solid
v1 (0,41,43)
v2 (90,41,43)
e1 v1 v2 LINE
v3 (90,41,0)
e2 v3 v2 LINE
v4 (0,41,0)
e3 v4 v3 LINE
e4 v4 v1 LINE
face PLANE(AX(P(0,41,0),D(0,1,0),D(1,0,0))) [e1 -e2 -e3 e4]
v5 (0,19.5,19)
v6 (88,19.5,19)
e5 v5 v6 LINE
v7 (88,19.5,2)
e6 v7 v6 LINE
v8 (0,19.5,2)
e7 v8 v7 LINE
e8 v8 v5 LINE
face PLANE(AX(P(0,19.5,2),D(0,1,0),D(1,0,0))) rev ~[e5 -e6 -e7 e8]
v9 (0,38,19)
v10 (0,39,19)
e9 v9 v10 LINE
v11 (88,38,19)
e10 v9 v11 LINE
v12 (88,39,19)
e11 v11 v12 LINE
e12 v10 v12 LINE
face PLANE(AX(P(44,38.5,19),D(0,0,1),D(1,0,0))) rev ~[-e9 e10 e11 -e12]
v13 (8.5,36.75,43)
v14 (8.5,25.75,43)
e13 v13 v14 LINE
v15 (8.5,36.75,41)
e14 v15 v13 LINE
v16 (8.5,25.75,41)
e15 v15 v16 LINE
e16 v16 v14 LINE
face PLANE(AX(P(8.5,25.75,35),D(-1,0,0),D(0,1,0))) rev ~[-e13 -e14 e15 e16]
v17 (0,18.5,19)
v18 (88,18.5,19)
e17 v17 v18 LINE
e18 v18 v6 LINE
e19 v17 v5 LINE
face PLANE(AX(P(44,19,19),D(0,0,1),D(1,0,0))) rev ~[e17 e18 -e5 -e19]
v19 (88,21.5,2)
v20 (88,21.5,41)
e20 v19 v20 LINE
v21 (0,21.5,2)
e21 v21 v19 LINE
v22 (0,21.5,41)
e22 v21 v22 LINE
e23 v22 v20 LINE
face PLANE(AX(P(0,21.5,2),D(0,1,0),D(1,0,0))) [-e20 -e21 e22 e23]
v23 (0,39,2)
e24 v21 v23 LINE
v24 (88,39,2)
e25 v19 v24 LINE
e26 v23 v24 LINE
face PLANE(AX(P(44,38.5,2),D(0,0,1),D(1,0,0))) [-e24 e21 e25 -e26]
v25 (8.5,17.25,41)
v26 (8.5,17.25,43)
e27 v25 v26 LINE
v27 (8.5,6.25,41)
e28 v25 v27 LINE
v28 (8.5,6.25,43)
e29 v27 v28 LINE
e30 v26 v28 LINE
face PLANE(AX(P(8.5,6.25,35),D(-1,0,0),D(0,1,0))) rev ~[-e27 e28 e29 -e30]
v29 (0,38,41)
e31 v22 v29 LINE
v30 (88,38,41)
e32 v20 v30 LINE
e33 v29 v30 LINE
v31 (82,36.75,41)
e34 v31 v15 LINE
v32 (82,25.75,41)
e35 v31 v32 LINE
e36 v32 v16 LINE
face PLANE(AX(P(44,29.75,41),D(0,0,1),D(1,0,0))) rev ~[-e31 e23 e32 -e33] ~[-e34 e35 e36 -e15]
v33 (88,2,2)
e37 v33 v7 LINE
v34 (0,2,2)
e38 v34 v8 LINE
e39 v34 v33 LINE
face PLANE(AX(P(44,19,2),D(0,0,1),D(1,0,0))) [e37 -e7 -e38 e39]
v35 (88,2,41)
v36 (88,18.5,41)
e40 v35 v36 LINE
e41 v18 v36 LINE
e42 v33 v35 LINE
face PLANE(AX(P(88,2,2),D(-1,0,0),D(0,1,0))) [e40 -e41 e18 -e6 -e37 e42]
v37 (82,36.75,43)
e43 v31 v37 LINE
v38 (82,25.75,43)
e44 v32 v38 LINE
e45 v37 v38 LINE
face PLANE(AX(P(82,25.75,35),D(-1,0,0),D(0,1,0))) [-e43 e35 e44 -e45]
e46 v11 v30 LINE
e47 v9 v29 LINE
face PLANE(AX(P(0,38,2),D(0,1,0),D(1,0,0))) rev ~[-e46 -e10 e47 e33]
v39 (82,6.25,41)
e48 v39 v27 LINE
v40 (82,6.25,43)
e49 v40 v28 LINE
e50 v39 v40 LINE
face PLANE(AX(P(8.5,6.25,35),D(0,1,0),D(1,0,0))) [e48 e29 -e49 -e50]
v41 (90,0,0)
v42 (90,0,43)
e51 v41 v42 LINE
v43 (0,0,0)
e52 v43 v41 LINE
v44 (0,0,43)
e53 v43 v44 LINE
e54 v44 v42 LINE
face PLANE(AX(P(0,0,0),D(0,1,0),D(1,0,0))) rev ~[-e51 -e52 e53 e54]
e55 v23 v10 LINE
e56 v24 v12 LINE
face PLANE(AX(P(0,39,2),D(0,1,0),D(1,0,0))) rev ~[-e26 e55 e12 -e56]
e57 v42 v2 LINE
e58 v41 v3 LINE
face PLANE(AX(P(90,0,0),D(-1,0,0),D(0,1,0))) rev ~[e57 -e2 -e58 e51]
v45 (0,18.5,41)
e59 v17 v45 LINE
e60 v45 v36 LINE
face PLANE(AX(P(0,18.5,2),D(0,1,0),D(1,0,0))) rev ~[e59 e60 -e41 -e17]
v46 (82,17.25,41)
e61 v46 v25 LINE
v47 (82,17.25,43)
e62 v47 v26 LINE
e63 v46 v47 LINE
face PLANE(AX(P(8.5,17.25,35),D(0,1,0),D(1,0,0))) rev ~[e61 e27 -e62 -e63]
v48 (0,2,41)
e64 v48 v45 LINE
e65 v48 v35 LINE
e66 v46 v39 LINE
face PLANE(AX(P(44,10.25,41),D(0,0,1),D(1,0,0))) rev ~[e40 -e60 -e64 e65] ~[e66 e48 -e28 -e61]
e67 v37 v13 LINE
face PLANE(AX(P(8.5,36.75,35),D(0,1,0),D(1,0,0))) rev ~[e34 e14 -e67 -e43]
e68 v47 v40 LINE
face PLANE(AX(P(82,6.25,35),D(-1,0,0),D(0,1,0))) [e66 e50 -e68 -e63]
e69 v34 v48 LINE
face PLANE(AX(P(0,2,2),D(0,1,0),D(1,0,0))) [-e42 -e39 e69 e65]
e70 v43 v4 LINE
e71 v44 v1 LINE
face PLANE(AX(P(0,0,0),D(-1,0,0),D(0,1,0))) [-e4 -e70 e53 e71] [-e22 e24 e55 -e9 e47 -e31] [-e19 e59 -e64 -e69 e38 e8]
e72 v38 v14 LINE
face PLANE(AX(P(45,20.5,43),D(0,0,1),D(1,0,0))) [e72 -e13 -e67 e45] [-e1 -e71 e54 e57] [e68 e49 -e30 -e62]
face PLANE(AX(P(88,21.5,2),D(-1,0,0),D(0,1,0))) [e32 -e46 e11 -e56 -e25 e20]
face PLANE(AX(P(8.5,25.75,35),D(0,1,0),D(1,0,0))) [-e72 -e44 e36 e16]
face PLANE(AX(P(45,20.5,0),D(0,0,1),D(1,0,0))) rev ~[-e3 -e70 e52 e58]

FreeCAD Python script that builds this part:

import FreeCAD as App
import Part
import Sketcher

V = App.Vector
Q = App.Units.Quantity


def add_polygon(sketch, points):
    """Adds a closed chain of lines whose ends are joined by coincident constraints."""
    first, n = sketch.GeometryCount, len(points)
    for a, b in zip(points, points[1:] + points[:1]):
        sketch.addGeometry(Part.LineSegment(App.Vector(*a, 0), App.Vector(*b, 0)), False)
    for i in range(n):
        sketch.addConstraint(Sketcher.Constraint("Coincident", first + i, 2, first + (i + 1) % n, 1))

doc = App.newDocument("Part")
body = doc.addObject("PartDesign::Body", "Body")

sketch1 = body.newObject("Sketcher::SketchObject", "Sketch")
sketch1.AttachmentSupport = (doc.getObject("XY_Plane"), [""])
sketch1.MapMode = "FlatFace"
sketch1.AttachmentOffset = App.Placement(V(0, 0, 35), App.Rotation())
add_polygon(sketch1, [(8, 37), (8, 26), (82, 26), (82, 37)])
sketch1.addConstraint(Sketcher.Constraint("Vertical", 0))
sketch1.addConstraint(Sketcher.Constraint("Horizontal", 1))
sketch1.addConstraint(Sketcher.Constraint("Vertical", 2))
sketch1.addConstraint(Sketcher.Constraint("Horizontal", 3))
sketch1.addConstraint(Sketcher.Constraint("DistanceY", 0, 2, 0, 1, Q("11 mm")))
sketch1.addConstraint(Sketcher.Constraint("DistanceX", 1, 1, 1, 2, Q("73.5 mm")))
sketch1.addConstraint(Sketcher.Constraint("DistanceX", -1, 1, 1, 2, Q("82 mm")))
sketch1.addConstraint(Sketcher.Constraint("DistanceY", -1, 1, 0, 2, Q("25.75 mm")))
pad1 = body.newObject("PartDesign::Pad", "Pad")
pad1.Profile = sketch1
pad1.Length = 10
body2 = doc.addObject("PartDesign::Body", "Body001")

sketch2 = body2.newObject("Sketcher::SketchObject", "Sketch001")
sketch2.AttachmentSupport = (doc.getObject("XY_Plane001"), [""])
sketch2.MapMode = "FlatFace"
sketch2.AttachmentOffset = App.Placement(V(0, 0, 35), App.Rotation())
add_polygon(sketch2, [(8, 17), (8, 6), (82, 6), (82, 17)])
sketch2.addConstraint(Sketcher.Constraint("Vertical", 0))
sketch2.addConstraint(Sketcher.Constraint("Horizontal", 1))
sketch2.addConstraint(Sketcher.Constraint("Vertical", 2))
sketch2.addConstraint(Sketcher.Constraint("Horizontal", 3))
sketch2.addConstraint(Sketcher.Constraint("DistanceY", 0, 2, 0, 1, Q("11 mm")))
sketch2.addConstraint(Sketcher.Constraint("DistanceX", 1, 1, 1, 2, Q("73.5 mm")))
sketch2.addConstraint(Sketcher.Constraint("DistanceX", -1, 1, 1, 2, Q("82 mm")))
sketch2.addConstraint(Sketcher.Constraint("DistanceY", -1, 1, 0, 2, Q("6.25 mm")))
pad2 = body2.newObject("PartDesign::Pad", "Pad001")
pad2.Profile = sketch2
pad2.Length = 10
body3 = doc.addObject("PartDesign::Body", "Body002")

sketch3 = body3.newObject("Sketcher::SketchObject", "Sketch002")
sketch3.AttachmentSupport = (doc.getObject("XY_Plane002"), [""])
sketch3.MapMode = "FlatFace"
sketch3.AttachmentOffset = App.Placement(V(0, 0, 2), App.Rotation())
add_polygon(sketch3, [(0, 39), (0, 38), (88, 38), (88, 39)])
sketch3.addConstraint(Sketcher.Constraint("Vertical", 0))
sketch3.addConstraint(Sketcher.Constraint("Horizontal", 1))
sketch3.addConstraint(Sketcher.Constraint("Vertical", 2))
sketch3.addConstraint(Sketcher.Constraint("Horizontal", 3))
sketch3.addConstraint(Sketcher.Constraint("PointOnObject", 0, 2, -2))
sketch3.addConstraint(Sketcher.Constraint("DistanceX", 1, 1, 1, 2, Q("88 mm")))
sketch3.addConstraint(Sketcher.Constraint("DistanceY", 0, 2, 0, 1, Q("1 mm")))
sketch3.addConstraint(Sketcher.Constraint("DistanceY", -1, 1, 0, 2, Q("38 mm")))
pad3 = body3.newObject("PartDesign::Pad", "Pad002")
pad3.Profile = sketch3
pad3.Length = 17
body4 = doc.addObject("PartDesign::Body", "Body003")

sketch4 = body4.newObject("Sketcher::SketchObject", "Sketch003")
sketch4.AttachmentSupport = (doc.getObject("XY_Plane003"), [""])
sketch4.MapMode = "FlatFace"
sketch4.AttachmentOffset = App.Placement(V(0, 0, 2), App.Rotation())
add_polygon(sketch4, [(0, 19.5), (0, 18.5), (88, 18.5), (88, 19.5)])
sketch4.addConstraint(Sketcher.Constraint("Vertical", 0))
sketch4.addConstraint(Sketcher.Constraint("Horizontal", 1))
sketch4.addConstraint(Sketcher.Constraint("Vertical", 2))
sketch4.addConstraint(Sketcher.Constraint("Horizontal", 3))
sketch4.addConstraint(Sketcher.Constraint("PointOnObject", 0, 2, -2))
sketch4.addConstraint(Sketcher.Constraint("DistanceX", 1, 1, 1, 2, Q("88 mm")))
sketch4.addConstraint(Sketcher.Constraint("DistanceY", 0, 2, 0, 1, Q("1 mm")))
sketch4.addConstraint(Sketcher.Constraint("DistanceY", -1, 1, 0, 2, Q("18.5 mm")))
pad4 = body4.newObject("PartDesign::Pad", "Pad003")
pad4.Profile = sketch4
pad4.Length = 17
body5 = doc.addObject("PartDesign::Body", "Body004")

sketch5 = body5.newObject("Sketcher::SketchObject", "Sketch004")
sketch5.AttachmentSupport = (doc.getObject("XY_Plane004"), [""])
sketch5.MapMode = "FlatFace"
sketch5.AttachmentOffset = App.Placement(V(0, 0, 2), App.Rotation())
add_polygon(sketch5, [(0, 38), (0, 22), (88, 22), (88, 38)])
sketch5.addConstraint(Sketcher.Constraint("Vertical", 0))
sketch5.addConstraint(Sketcher.Constraint("Horizontal", 1))
sketch5.addConstraint(Sketcher.Constraint("Vertical", 2))
sketch5.addConstraint(Sketcher.Constraint("Horizontal", 3))
sketch5.addConstraint(Sketcher.Constraint("PointOnObject", 0, 2, -2))
sketch5.addConstraint(Sketcher.Constraint("DistanceX", 1, 1, 1, 2, Q("88 mm")))
sketch5.addConstraint(Sketcher.Constraint("DistanceY", 0, 2, 0, 1, Q("16.5 mm")))
sketch5.addConstraint(Sketcher.Constraint("DistanceY", -1, 1, 2, 2, Q("38 mm")))
pad5 = body5.newObject("PartDesign::Pad", "Pad004")
pad5.Profile = sketch5
pad5.Length = 39
body6 = doc.addObject("PartDesign::Body", "Body005")

sketch6 = body6.newObject("Sketcher::SketchObject", "Sketch005")
sketch6.AttachmentSupport = (doc.getObject("XY_Plane005"), [""])
sketch6.MapMode = "FlatFace"
sketch6.AttachmentOffset = App.Placement(V(0, 0, 2), App.Rotation())
add_polygon(sketch6, [(0, 18), (0, 2), (88, 2), (88, 18)])
sketch6.addConstraint(Sketcher.Constraint("Vertical", 0))
sketch6.addConstraint(Sketcher.Constraint("Horizontal", 1))
sketch6.addConstraint(Sketcher.Constraint("Vertical", 2))
sketch6.addConstraint(Sketcher.Constraint("Horizontal", 3))
sketch6.addConstraint(Sketcher.Constraint("PointOnObject", 0, 2, -2))
sketch6.addConstraint(Sketcher.Constraint("DistanceX", 1, 1, 1, 2, Q("88 mm")))
sketch6.addConstraint(Sketcher.Constraint("DistanceY", 0, 2, 0, 1, Q("16.5 mm")))
sketch6.addConstraint(Sketcher.Constraint("DistanceY", -1, 1, 0, 2, Q("2 mm")))
pad6 = body6.newObject("PartDesign::Pad", "Pad005")
pad6.Profile = sketch6
pad6.Length = 39
body7 = doc.addObject("PartDesign::Body", "Body006")

sketch7 = body7.newObject("Sketcher::SketchObject", "Sketch006")
sketch7.AttachmentSupport = (doc.getObject("XY_Plane006"), [""])
sketch7.MapMode = "FlatFace"
add_polygon(sketch7, [(0, 41), (0, 0), (90, 0), (90, 41)])
sketch7.addConstraint(Sketcher.Constraint("Vertical", 0))
sketch7.addConstraint(Sketcher.Constraint("Horizontal", 1))
sketch7.addConstraint(Sketcher.Constraint("Vertical", 2))
sketch7.addConstraint(Sketcher.Constraint("Horizontal", 3))
sketch7.addConstraint(Sketcher.Constraint("Coincident", 0, 2, -1, 1))
sketch7.addConstraint(Sketcher.Constraint("DistanceX", 1, 1, 1, 2, Q("90 mm")))
sketch7.addConstraint(Sketcher.Constraint("DistanceY", 0, 2, 0, 1, Q("41 mm")))
pad7 = body7.newObject("PartDesign::Pad", "Pad006")
pad7.Profile = sketch7
pad7.Length = 43
doc.recompute()

boolean = body7.newObject("PartDesign::Boolean", "Boolean")
boolean.Type = "Cut"
boolean.addObjects([body6])
doc.recompute()

boolean2 = body7.newObject("PartDesign::Boolean", "Boolean001")
boolean2.Type = "Cut"
boolean2.addObjects([body5])
doc.recompute()

boolean3 = body7.newObject("PartDesign::Boolean", "Boolean002")
boolean3.Type = "Cut"
boolean3.addObjects([body4])
doc.recompute()

boolean4 = body7.newObject("PartDesign::Boolean", "Boolean003")
boolean4.Type = "Cut"
boolean4.addObjects([body3])
doc.recompute()

boolean5 = body7.newObject("PartDesign::Boolean", "Boolean004")
boolean5.Type = "Cut"
boolean5.addObjects([body2])
doc.recompute()

boolean6 = body7.newObject("PartDesign::Boolean", "Boolean005")
boolean6.Type = "Cut"
boolean6.addObjects([body])

doc.recompute()
